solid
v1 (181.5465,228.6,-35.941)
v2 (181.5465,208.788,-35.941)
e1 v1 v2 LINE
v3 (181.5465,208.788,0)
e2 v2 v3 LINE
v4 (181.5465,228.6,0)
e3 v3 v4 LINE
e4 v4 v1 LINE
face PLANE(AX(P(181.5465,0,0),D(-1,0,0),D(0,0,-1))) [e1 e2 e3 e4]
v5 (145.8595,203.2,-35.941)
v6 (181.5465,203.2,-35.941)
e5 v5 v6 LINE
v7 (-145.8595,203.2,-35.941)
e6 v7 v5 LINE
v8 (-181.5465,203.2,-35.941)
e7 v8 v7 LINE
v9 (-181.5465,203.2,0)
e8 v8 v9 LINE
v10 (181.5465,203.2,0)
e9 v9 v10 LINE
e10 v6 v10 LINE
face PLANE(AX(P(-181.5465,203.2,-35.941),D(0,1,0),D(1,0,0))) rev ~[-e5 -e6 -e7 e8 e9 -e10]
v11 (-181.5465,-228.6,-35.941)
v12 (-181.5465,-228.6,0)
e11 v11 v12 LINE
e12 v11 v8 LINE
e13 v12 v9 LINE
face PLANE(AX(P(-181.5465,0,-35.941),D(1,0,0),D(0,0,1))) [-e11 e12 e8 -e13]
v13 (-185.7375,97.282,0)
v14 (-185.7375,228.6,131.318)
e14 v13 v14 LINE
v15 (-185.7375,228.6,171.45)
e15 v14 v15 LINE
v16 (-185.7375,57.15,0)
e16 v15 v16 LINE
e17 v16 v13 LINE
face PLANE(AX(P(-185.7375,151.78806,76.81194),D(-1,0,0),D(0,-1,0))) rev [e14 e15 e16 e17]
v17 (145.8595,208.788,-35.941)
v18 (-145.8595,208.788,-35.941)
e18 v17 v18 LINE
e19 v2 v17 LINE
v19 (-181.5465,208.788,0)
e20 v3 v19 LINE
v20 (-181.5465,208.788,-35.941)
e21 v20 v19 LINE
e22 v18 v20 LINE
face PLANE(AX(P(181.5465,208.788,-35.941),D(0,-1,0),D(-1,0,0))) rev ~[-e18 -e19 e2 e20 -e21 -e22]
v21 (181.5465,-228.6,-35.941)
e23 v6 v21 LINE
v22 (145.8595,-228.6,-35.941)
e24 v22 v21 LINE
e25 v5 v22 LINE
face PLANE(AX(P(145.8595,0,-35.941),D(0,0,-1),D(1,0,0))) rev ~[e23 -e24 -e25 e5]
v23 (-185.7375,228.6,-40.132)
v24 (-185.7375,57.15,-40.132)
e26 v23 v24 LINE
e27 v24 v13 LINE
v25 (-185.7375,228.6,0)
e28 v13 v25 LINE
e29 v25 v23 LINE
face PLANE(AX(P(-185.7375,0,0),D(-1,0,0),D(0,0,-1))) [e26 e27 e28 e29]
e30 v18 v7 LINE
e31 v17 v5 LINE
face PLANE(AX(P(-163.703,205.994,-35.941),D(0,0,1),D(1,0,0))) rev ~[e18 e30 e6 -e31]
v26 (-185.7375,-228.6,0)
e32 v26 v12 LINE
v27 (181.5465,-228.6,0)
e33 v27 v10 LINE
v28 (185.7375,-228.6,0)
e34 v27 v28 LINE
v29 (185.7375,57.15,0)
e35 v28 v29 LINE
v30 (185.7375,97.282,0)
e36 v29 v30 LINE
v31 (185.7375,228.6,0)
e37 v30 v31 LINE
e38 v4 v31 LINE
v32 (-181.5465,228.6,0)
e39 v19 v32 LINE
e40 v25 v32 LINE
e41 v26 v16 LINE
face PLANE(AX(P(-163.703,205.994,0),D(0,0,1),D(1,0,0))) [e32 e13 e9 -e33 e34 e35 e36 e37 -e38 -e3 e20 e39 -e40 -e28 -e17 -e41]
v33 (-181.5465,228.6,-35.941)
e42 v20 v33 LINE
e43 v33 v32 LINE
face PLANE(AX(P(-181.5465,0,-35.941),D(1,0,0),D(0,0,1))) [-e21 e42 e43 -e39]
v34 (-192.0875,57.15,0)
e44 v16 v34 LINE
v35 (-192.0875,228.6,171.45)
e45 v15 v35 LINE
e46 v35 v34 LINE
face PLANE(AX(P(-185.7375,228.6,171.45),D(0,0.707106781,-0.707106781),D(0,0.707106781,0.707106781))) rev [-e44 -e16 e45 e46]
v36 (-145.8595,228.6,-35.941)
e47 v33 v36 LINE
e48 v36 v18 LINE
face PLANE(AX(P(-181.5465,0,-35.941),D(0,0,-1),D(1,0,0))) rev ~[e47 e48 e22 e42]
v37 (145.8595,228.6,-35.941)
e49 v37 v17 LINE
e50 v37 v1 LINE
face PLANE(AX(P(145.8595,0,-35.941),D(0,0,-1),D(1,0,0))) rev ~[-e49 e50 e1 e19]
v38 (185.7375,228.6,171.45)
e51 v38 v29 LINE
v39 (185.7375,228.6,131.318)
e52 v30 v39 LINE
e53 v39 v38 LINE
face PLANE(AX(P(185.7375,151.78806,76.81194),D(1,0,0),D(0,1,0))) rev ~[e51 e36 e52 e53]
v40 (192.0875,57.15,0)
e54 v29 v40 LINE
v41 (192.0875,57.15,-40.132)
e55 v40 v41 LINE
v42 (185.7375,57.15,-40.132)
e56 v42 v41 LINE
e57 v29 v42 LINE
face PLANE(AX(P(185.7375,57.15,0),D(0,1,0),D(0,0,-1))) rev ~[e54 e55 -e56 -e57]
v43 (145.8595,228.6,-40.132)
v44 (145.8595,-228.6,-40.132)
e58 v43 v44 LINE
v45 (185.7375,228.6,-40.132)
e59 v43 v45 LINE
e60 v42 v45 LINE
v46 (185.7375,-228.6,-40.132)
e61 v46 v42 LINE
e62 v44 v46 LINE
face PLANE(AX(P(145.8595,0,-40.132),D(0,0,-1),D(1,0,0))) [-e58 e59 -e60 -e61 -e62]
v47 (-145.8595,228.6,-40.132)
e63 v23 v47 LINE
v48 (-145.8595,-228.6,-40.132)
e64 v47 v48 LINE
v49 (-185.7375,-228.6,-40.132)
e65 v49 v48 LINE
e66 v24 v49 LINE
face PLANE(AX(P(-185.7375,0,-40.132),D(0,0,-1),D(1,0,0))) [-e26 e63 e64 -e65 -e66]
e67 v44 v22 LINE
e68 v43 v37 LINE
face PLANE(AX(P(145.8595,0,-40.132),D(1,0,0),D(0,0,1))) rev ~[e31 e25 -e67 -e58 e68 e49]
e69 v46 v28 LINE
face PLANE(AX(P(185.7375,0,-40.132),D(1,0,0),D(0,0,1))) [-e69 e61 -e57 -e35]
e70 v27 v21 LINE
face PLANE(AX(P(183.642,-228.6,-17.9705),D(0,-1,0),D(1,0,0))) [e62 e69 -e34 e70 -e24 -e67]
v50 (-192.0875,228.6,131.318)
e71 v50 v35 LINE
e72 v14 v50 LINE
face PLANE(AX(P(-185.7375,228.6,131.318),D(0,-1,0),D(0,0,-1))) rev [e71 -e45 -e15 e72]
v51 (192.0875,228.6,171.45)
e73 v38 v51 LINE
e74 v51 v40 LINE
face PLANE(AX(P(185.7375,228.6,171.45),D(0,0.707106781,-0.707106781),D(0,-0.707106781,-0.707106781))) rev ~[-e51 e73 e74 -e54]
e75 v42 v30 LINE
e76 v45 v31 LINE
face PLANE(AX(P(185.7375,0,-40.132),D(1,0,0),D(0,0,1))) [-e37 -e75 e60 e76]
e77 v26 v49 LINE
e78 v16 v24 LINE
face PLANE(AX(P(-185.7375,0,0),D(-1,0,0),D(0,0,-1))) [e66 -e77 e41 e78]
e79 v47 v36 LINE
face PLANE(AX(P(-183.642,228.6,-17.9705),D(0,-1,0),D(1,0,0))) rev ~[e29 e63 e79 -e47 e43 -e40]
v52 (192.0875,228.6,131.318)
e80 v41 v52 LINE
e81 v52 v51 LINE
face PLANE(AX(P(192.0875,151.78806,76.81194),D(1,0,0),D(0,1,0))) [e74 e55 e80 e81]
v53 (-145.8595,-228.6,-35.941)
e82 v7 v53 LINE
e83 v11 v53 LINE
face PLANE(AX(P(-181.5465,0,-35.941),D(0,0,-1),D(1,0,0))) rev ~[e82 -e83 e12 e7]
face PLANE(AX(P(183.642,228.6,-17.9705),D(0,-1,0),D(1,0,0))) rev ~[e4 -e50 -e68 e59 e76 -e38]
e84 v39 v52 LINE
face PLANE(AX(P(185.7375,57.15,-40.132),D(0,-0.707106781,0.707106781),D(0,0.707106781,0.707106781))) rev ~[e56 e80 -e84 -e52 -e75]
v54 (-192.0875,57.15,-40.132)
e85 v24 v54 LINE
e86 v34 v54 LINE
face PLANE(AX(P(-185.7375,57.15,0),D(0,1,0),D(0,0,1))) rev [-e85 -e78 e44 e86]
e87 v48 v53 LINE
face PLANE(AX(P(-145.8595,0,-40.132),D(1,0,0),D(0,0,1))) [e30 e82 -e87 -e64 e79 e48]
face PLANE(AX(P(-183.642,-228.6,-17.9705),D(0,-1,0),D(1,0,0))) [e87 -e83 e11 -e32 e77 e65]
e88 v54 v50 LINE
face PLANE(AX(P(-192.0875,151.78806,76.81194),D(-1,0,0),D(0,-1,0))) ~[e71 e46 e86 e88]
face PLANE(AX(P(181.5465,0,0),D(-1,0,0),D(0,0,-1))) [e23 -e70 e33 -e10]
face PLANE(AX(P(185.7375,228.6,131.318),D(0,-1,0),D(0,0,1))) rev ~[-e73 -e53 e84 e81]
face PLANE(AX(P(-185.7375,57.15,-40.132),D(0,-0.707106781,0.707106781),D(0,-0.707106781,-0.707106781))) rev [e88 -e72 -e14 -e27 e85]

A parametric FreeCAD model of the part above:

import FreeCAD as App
import Part
import Sketcher

V = App.Vector
Q = App.Units.Quantity


def add_polygon(sketch, points):
    """Adds a closed chain of lines whose ends are joined by coincident constraints."""
    first, n = sketch.GeometryCount, len(points)
    for a, b in zip(points, points[1:] + points[:1]):
        sketch.addGeometry(Part.LineSegment(App.Vector(*a, 0), App.Vector(*b, 0)), False)
    for i in range(n):
        sketch.addConstraint(Sketcher.Constraint("Coincident", first + i, 2, first + (i + 1) % n, 1))

doc = App.newDocument("Part")
params = doc.addObject("Spreadsheet::Sheet", "Params")
for row, (alias, value) in enumerate([
    ("sketch1_width", "1.57 in"),
    ("sketch1_height", "1.58 in"),
    ("sketch1_width2", "1.405 in"),
    ("pad1_length", "18 in"),
    ("sketch2_width", "1.57 in"),
    ("sketch2_height", "1.58 in"),
    ("sketch2_width2", "1.405 in"),
    ("pad2_length", "18 in"),
    ("sketch3_height", "0.22 in"),
    ("sketch3_width", "14.295 in"),
    ("pad3_length", "1.415 in"),
    ("sketch4_height", "1.58 in"),
    ("pad4_length", "0.25 in"),
], start=1):
    params.set(f"A{row}", alias)
    params.set(f"B{row}", "=" + value)
    params.setAlias(f"B{row}", alias)

body = doc.addObject("PartDesign::Body", "Body")

sketch1 = doc.addObject("Sketcher::SketchObject", "Sketch")
body.addObject(sketch1)
sketch1.AttachmentSupport = (doc.XZ_Plane, [""])
sketch1.MapMode = "FlatFace"
add_polygon(sketch1, [(-185.7, 0), (-185.7, -40.1), (-145.9, -40.1), (-145.9, -35.9), (-181.5, -35.9), (-181.5, 0)])
sketch1.addConstraint([
    Sketcher.Constraint("Vertical", 0),
    Sketcher.Constraint("Horizontal", 1),
    Sketcher.Constraint("Vertical", 2),
    Sketcher.Constraint("Horizontal", 3),
    Sketcher.Constraint("Vertical", 4),
    Sketcher.Constraint("Horizontal", 5),
    Sketcher.Constraint("PointOnObject", 4, 2, -1),
    Sketcher.Constraint("Equal", 5, 2),
    Sketcher.Constraint("DistanceX", 1, 1, 1, 2, Q("1.57 in")),
    Sketcher.Constraint("DistanceY", 0, 2, 0, 1, Q("1.58 in")),
    Sketcher.Constraint("DistanceX", 3, 2, 3, 1, Q("1.405 in")),
    Sketcher.Constraint("DistanceX", 0, 2, -1, 1, Q("7.3125 in")),
])
sketch1.setExpression("Constraints[14]", "Params.sketch1_width")
sketch1.setExpression("Constraints[15]", "Params.sketch1_height")
sketch1.setExpression("Constraints[16]", "Params.sketch1_width2")
pad1 = doc.addObject("PartDesign::Pad", "Pad")
body.addObject(pad1)
pad1.Profile = sketch1
pad1.setExpression("Length", "Params.pad1_length")
pad1.Midplane = True
body2 = doc.addObject("PartDesign::Body", "Body001")

sketch2 = doc.addObject("Sketcher::SketchObject", "Sketch001")
body2.addObject(sketch2)
sketch2.AttachmentSupport = (doc.getObject("XZ_Plane001"), [""])
sketch2.MapMode = "FlatFace"
add_polygon(sketch2, [(181.5, 0), (181.5, -35.9), (145.9, -35.9), (145.9, -40.1), (185.7, -40.1), (185.7, 0)])
sketch2.addConstraint([
    Sketcher.Constraint("Vertical", 0),
    Sketcher.Constraint("Horizontal", 1),
    Sketcher.Constraint("Vertical", 2),
    Sketcher.Constraint("Horizontal", 3),
    Sketcher.Constraint("Vertical", 4),
    Sketcher.Constraint("Horizontal", 5),
    Sketcher.Constraint("PointOnObject", 4, 2, -1),
    Sketcher.Constraint("Equal", 5, 2),
    Sketcher.Constraint("DistanceX", 3, 1, 3, 2, Q("1.57 in")),
    Sketcher.Constraint("DistanceY", 4, 1, 4, 2, Q("1.58 in")),
    Sketcher.Constraint("DistanceX", 1, 2, 1, 1, Q("1.405 in")),
    Sketcher.Constraint("DistanceX", -1, 1, 3, 2, Q("7.3125 in")),
])
sketch2.setExpression("Constraints[14]", "Params.sketch2_width")
sketch2.setExpression("Constraints[15]", "Params.sketch2_height")
sketch2.setExpression("Constraints[16]", "Params.sketch2_width2")
pad2 = doc.addObject("PartDesign::Pad", "Pad001")
body2.addObject(pad2)
pad2.Profile = sketch2
pad2.setExpression("Length", "Params.pad2_length")
pad2.Midplane = True
body.AllowCompound = True
doc.recompute()

boolean = doc.addObject("PartDesign::Boolean", "Boolean")
body.addObject(boolean)
boolean.Type = "Fuse"
boolean.addObjects([body2])

sketch3 = doc.addObject("Sketcher::SketchObject", "Sketch002")
body.addObject(sketch3)
sketch3.AttachmentSupport = (doc.XY_Plane, [""])
sketch3.MapMode = "FlatFace"
sketch3.AttachmentOffset = App.Placement(V(0, 0, -1.415 * 25.4), App.Rotation())
add_polygon(sketch3, [(-182, 209), (-182, 203), (182, 203), (182, 209)])
sketch3.addConstraint([
    Sketcher.Constraint("Vertical", 0),
    Sketcher.Constraint("Horizontal", 1),
    Sketcher.Constraint("Vertical", 2),
    Sketcher.Constraint("Horizontal", 3),
    Sketcher.Constraint("DistanceY", -1, 1, 0, 2, Q("8 in")),
    Sketcher.Constraint("DistanceY", 0, 2, 0, 1, Q("0.22 in")),
    Sketcher.Constraint("DistanceX", 1, 1, 1, 2, Q("14.295 in")),
    Sketcher.Constraint("DistanceX", 0, 2, -1, 1, Q("7.1475 in")),
])
sketch3.setExpression("Constraints[9]", "Params.sketch3_height")
sketch3.setExpression("Constraints[10]", "Params.sketch3_width")
pad3 = doc.addObject("PartDesign::Pad", "Pad002")
body.addObject(pad3)
pad3.Profile = sketch3
pad3.setExpression("Length", "Params.pad3_length")

sketch4 = doc.addObject("Sketcher::SketchObject", "Sketch003")
body.addObject(sketch4)
sketch4.AttachmentSupport = (doc.YZ_Plane, [""])
sketch4.MapMode = "FlatFace"
sketch4.AttachmentOffset = App.Placement(V(0, 0, 7.3125 * 25.4), App.Rotation())
add_polygon(sketch4, [(229, 171), (57, 0), (57, -40), (229, 131)])
sketch4.addConstraint([
    Sketcher.Constraint("Vertical", 1),
    Sketcher.Constraint("Vertical", 3),
    Sketcher.Constraint("PointOnObject", 0, 2, -1),
    Sketcher.Constraint("Parallel", 0, 2),
    Sketcher.Constraint("DistanceX", -1, 1, 2, 2, Q("9 in")),
    Sketcher.Constraint("Angle", 0, Q("-135 deg")),
    Sketcher.Constraint("DistanceY", 1, 2, 1, 1, Q("1.58 in")),
    Sketcher.Constraint("DistanceX", -1, 1, 0, 2, Q("2.25 in")),
])
sketch4.setExpression("Constraints[10]", "Params.sketch4_height")
pad4 = doc.addObject("PartDesign::Pad", "Pad003")
body.addObject(pad4)
pad4.Profile = sketch4
pad4.setExpression("Length", "Params.pad4_length")
body3 = doc.addObject("PartDesign::Body", "Body002")
doc.recompute()

body3.BaseFeature = body
doc.recompute()

mirroring = doc.addObject("Part::Mirroring", "Mirroring")
mirroring.Source = body
mirroring.Base = V(0, 0, 0)
mirroring.Normal = V(1, 0, 0)
body4 = doc.addObject("PartDesign::Body", "Body003")
body4.BaseFeature = mirroring
boolean2 = doc.addObject("PartDesign::Boolean", "Boolean001")
body3.addObject(boolean2)
boolean2.Type = "Fuse"
boolean2.addObjects([body4])
doc.recompute()
mirroring.Visibility = False

doc.recompute()
